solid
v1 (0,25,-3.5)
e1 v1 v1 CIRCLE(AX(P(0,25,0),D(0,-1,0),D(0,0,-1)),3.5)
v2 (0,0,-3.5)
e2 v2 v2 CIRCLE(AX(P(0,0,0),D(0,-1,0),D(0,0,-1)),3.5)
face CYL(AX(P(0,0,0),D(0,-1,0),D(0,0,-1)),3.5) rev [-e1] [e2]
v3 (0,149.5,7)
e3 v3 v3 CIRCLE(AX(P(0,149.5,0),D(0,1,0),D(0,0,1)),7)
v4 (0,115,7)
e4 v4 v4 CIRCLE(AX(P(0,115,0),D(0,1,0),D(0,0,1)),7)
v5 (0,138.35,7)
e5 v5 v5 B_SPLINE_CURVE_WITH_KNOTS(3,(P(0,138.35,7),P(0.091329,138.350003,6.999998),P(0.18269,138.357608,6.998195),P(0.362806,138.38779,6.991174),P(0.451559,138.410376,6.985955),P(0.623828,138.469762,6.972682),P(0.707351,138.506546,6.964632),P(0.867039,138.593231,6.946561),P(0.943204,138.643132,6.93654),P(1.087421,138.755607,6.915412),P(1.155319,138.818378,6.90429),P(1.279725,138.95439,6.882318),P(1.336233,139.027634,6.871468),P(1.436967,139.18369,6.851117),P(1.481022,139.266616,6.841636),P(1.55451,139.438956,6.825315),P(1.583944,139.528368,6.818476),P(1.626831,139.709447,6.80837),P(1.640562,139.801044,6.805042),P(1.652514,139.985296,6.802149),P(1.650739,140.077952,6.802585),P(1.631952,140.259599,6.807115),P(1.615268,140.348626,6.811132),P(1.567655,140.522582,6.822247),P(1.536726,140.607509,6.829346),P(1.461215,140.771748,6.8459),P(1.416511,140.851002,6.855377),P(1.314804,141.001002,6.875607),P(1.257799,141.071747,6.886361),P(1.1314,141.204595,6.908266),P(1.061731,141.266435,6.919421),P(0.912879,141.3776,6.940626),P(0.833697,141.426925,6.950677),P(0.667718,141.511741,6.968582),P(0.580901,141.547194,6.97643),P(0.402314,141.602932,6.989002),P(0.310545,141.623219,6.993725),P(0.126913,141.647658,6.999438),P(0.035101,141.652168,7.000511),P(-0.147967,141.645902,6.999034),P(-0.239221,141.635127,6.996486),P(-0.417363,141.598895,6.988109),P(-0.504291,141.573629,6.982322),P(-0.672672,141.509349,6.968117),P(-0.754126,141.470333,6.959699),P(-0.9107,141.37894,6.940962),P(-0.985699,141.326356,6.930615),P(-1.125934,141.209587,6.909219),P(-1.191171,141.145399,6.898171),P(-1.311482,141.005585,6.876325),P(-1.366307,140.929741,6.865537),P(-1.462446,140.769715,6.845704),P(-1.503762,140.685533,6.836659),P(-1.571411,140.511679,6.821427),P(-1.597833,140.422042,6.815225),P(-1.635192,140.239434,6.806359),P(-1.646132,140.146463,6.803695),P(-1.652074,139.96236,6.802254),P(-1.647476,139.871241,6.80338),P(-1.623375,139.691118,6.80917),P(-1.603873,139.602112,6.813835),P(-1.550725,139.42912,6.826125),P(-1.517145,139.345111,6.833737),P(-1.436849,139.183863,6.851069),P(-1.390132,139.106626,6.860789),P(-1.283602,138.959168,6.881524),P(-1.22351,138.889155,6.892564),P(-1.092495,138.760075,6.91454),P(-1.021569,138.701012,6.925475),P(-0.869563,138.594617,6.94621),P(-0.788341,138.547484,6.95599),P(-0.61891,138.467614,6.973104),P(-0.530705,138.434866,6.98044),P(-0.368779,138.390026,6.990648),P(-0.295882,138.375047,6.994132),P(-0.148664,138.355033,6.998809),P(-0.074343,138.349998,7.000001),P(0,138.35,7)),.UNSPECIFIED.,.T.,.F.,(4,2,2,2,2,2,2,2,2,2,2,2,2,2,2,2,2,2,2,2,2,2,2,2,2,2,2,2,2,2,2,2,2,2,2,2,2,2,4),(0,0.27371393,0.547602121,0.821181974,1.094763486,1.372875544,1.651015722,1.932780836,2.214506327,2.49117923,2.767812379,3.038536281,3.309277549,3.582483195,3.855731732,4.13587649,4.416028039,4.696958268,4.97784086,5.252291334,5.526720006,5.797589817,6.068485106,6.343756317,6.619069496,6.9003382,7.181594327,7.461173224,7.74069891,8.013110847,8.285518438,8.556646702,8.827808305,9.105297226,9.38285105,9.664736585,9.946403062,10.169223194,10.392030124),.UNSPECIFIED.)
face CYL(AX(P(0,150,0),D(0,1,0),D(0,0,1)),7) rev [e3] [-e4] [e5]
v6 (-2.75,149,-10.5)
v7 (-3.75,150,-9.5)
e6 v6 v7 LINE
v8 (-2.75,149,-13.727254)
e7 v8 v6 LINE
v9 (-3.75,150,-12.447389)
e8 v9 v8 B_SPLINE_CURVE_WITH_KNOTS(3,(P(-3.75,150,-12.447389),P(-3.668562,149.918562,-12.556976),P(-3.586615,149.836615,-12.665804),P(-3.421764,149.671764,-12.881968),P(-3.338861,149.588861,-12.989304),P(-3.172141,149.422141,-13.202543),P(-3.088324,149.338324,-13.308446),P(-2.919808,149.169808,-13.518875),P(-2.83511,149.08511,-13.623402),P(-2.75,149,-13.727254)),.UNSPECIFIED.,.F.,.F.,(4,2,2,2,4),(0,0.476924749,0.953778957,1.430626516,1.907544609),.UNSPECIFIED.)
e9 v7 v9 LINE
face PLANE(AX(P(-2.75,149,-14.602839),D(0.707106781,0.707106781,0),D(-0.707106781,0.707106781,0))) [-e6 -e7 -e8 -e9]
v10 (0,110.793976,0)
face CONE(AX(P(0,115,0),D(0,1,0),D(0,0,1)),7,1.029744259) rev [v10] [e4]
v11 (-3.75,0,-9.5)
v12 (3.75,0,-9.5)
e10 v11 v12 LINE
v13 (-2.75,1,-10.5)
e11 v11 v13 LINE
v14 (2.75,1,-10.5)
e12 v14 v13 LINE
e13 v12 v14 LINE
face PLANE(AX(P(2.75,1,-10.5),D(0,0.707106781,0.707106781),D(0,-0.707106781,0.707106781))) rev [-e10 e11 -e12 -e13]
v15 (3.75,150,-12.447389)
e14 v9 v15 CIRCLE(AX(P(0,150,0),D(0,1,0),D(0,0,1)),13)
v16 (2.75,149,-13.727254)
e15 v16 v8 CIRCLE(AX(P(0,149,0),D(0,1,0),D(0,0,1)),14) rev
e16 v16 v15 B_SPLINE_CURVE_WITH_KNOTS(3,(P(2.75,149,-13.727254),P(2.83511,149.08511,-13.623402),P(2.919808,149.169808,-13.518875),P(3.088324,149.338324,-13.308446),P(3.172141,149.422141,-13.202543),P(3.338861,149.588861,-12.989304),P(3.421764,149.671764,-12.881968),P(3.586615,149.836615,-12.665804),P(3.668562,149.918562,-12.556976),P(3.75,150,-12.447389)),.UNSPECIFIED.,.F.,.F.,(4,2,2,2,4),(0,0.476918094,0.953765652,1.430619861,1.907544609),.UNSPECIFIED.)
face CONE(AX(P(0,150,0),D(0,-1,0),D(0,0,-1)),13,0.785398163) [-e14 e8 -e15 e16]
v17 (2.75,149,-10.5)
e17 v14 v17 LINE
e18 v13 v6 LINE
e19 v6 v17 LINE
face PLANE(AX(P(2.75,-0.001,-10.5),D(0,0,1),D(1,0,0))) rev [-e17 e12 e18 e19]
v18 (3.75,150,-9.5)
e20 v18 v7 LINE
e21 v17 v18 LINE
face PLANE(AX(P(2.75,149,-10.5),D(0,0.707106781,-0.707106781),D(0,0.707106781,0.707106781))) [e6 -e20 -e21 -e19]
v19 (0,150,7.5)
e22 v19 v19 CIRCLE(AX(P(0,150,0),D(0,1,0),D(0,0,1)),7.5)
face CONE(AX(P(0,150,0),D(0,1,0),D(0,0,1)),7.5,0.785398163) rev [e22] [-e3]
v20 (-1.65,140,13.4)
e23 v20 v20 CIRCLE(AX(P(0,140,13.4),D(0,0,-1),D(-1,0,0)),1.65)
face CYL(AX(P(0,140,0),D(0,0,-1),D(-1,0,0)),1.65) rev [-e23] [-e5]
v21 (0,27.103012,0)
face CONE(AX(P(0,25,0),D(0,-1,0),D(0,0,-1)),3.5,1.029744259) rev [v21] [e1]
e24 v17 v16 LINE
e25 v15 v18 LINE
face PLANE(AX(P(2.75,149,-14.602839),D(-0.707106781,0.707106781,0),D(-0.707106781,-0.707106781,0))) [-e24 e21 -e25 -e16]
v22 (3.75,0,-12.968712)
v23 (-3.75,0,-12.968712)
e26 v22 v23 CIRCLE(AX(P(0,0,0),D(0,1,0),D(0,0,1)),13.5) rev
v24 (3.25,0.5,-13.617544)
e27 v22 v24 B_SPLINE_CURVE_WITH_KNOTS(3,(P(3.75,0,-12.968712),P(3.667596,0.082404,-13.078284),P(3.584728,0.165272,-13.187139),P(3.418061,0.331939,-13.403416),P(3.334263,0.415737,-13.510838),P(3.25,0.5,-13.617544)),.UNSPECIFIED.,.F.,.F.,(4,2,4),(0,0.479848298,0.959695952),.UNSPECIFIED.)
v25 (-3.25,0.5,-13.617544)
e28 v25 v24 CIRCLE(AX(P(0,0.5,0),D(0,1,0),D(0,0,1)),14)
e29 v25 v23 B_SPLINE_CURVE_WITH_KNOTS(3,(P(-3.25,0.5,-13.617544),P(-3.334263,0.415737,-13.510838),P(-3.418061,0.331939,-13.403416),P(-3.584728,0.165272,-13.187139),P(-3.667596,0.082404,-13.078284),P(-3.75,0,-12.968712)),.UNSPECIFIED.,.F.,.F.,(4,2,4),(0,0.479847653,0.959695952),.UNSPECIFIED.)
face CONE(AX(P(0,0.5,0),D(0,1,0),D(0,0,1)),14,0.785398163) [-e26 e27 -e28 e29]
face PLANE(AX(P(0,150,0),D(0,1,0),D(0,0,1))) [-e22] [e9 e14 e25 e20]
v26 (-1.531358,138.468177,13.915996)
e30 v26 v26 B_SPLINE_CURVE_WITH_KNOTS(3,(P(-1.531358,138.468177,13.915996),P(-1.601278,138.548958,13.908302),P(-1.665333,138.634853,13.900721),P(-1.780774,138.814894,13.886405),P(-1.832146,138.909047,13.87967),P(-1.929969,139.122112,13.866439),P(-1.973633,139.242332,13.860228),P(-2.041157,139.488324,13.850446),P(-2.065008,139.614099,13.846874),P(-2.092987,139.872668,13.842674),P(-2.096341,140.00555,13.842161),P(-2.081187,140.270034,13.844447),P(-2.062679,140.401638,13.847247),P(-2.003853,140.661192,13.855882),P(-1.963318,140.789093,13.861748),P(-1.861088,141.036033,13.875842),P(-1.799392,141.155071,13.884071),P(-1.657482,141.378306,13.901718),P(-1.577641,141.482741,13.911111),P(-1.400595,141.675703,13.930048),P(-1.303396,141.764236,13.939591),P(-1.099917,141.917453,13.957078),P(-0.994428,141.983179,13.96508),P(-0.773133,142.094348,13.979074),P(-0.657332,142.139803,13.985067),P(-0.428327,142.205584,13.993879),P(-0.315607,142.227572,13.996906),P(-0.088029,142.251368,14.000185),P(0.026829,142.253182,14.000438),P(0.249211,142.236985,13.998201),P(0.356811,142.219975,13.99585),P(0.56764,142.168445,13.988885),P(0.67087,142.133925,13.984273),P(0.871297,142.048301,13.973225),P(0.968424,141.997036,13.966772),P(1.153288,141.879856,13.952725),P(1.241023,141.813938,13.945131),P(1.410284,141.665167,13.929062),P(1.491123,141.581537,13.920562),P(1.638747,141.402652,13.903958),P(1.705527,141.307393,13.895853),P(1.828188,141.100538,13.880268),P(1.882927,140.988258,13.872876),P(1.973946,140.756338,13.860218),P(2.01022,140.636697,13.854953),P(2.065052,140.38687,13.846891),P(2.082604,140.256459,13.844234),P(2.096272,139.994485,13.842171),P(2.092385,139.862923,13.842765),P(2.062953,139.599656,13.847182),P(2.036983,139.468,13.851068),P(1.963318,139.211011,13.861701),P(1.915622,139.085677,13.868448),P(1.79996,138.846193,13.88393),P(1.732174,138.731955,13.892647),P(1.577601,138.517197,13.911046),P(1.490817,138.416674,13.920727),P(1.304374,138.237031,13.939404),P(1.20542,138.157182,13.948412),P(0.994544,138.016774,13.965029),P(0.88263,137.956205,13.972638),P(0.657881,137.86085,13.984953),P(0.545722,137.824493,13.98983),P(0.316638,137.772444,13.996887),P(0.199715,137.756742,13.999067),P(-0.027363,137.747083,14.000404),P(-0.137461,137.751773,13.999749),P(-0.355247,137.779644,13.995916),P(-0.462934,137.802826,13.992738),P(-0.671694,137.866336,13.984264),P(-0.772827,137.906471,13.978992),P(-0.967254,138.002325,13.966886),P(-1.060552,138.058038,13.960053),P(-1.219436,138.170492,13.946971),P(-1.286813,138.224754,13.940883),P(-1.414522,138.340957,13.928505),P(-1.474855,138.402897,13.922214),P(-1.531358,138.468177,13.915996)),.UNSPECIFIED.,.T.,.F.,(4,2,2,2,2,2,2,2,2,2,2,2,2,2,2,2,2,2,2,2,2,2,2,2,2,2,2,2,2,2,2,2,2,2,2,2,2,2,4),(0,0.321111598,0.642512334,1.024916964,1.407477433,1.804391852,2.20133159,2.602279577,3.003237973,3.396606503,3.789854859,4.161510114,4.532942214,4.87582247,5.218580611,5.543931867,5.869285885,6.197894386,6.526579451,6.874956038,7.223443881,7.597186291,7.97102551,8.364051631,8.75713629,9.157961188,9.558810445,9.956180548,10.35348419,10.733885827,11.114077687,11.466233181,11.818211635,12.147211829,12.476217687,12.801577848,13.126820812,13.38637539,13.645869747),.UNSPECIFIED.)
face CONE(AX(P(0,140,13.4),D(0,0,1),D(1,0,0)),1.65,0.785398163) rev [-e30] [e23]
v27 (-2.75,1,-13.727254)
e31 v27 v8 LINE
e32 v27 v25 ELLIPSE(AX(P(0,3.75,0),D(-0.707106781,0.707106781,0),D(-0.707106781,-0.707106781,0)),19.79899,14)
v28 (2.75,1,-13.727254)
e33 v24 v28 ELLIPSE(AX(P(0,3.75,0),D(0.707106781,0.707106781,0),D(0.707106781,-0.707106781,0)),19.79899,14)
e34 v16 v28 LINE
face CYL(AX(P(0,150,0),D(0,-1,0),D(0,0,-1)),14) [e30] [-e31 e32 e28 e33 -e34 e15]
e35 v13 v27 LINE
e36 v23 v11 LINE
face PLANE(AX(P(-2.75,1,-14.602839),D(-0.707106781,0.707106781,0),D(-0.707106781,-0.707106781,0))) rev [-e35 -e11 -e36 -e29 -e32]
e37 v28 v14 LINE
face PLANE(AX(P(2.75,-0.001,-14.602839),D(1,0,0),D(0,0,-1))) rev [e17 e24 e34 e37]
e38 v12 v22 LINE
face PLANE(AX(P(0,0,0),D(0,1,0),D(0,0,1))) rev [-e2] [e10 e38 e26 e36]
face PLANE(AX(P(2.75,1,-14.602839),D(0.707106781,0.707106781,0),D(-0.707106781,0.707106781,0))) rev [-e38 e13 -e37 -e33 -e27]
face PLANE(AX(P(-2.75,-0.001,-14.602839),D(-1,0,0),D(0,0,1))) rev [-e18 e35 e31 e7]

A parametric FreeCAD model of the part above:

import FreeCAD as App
import Part
import Sketcher
Q = App.Units.Quantity


def edges_at(feature, points):
    """Names of the edges that pass closest to the given points."""
    edges = feature.Shape.Edges
    near = lambda p: min(range(len(edges)), key=lambda i: edges[i].distToShape(Part.Vertex(*p))[0])
    return sorted({f"Edge{near(p) + 1}" for p in points})

doc = App.newDocument("Part")
body = doc.addObject("PartDesign::Body", "Body")

# Sketch on XZ plane
sketch1 = body.newObject("Sketcher::SketchObject", "Sketch")
sketch1.AttachmentSupport = (doc.getObject("XZ_Plane"), [""])
sketch1.MapMode = "FlatFace"
sketch1.addGeometry(Part.Circle(App.Vector(0, 0, 0), App.Vector(0, 0, 1), 14), False)
sketch1.addConstraint(Sketcher.Constraint("Coincident", 0, 3, -1, 1))
sketch1.addConstraint(Sketcher.Constraint("Diameter", 0, 28.0))
pad1 = body.newObject("PartDesign::Pad", "Pad")
pad1.Profile = sketch1
pad1.Length = 150
pad1.Reversed = True
doc.recompute()

chamfer = body.newObject("PartDesign::Chamfer", "Chamfer")
chamfer.Base = (pad1, edges_at(pad1, [(0, 150, -14)]))
chamfer.Size = 1

# Sketch on XZ plane
sketch2 = body.newObject("Sketcher::SketchObject", "Sketch001")
sketch2.AttachmentSupport = (doc.getObject("XZ_Plane"), [""])
sketch2.MapMode = "FlatFace"
sketch2.AttachmentOffset = App.Placement(App.Vector(0, 0, -150), App.Rotation())
sketch2.addGeometry(Part.Circle(App.Vector(0, 0, 0), App.Vector(0, 0, 1), 7), False)
sketch2.addConstraint(Sketcher.Constraint("Coincident", 0, 3, -1, 1))
sketch2.addConstraint(Sketcher.Constraint("Diameter", 0, 14.0))
doc.recompute()
hole = body.newObject("PartDesign::Hole", "Hole")
hole.Profile = sketch2
hole.ThreadType = "None"
hole.Diameter = 14
hole.DepthType = "Dimension"
hole.Depth = 35
hole.DrillPoint = "Angled"
hole.DrillPointAngle = 118
hole.HoleCutType = "Countersink"
hole.HoleCutDiameter = 15
hole.HoleCutCountersinkAngle = 90
hole.Reversed = True
doc.recompute()

chamfer2 = body.newObject("PartDesign::Chamfer", "Chamfer001")
chamfer2.Base = (hole, edges_at(hole, [(0, 0, -14)]))
chamfer2.Size = 0.5

# Sketch on XZ plane
sketch3 = body.newObject("Sketcher::SketchObject", "Sketch002")
sketch3.AttachmentSupport = (doc.getObject("XZ_Plane"), [""])
sketch3.MapMode = "FlatFace"
sketch3.addGeometry(Part.Circle(App.Vector(0, 0, 0), App.Vector(0, 0, 1), 3.5), False)
sketch3.addConstraint(Sketcher.Constraint("Coincident", 0, 3, -1, 1))
sketch3.addConstraint(Sketcher.Constraint("Diameter", 0, 7.0))
doc.recompute()
hole2 = body.newObject("PartDesign::Hole", "Hole001")
hole2.Profile = sketch3
hole2.ThreadType = "None"
hole2.Diameter = 7
hole2.DepthType = "Dimension"
hole2.Depth = 25
hole2.DrillPoint = "Angled"
hole2.DrillPointAngle = 118

# Sketch on YZ plane
sketch4 = body.newObject("Sketcher::SketchObject", "Sketch003")
sketch4.AttachmentSupport = (doc.getObject("YZ_Plane"), [""])
sketch4.MapMode = "FlatFace"
sketch4.addGeometry(Part.LineSegment(App.Vector(140, 14, 0), App.Vector(140, 0, 0)), False)
sketch4.addGeometry(Part.LineSegment(App.Vector(140, 0, 0), App.Vector(141.7, 0, 0)), False)
sketch4.addGeometry(Part.LineSegment(App.Vector(141.7, 0, 0), App.Vector(141.7, 13.4, 0)), False)
sketch4.addGeometry(Part.LineSegment(App.Vector(141.7, 13.4, 0), App.Vector(142.2, 14, 0)), False)
sketch4.addGeometry(Part.LineSegment(App.Vector(142.2, 14, 0), App.Vector(140, 14, 0)), False)
sketch4.addGeometry(Part.LineSegment(App.Vector(140, 0, 0), App.Vector(140, 14, 0)), True)  # axis
sketch4.addConstraint(Sketcher.Constraint("Coincident", 0, 2, 1, 1))
sketch4.addConstraint(Sketcher.Constraint("Coincident", 1, 2, 2, 1))
sketch4.addConstraint(Sketcher.Constraint("Coincident", 2, 2, 3, 1))
sketch4.addConstraint(Sketcher.Constraint("Coincident", 3, 2, 4, 1))
sketch4.addConstraint(Sketcher.Constraint("Coincident", 4, 2, 0, 1))
sketch4.addConstraint(Sketcher.Constraint("Vertical", 0))
sketch4.addConstraint(Sketcher.Constraint("Horizontal", 1))
sketch4.addConstraint(Sketcher.Constraint("Vertical", 2))
sketch4.addConstraint(Sketcher.Constraint("Horizontal", 4))
sketch4.addConstraint(Sketcher.Constraint("Vertical", 5))
sketch4.addConstraint(Sketcher.Constraint("Coincident", 5, 1, 0, 2))
sketch4.addConstraint(Sketcher.Constraint("PointOnObject", 0, 2, -1))
sketch4.addConstraint(Sketcher.Constraint("Horizontal", 3, 2, 5, 2))
sketch4.addConstraint(Sketcher.Constraint("DistanceY", 0, 2, 0, 1, 14.0))
sketch4.addConstraint(Sketcher.Constraint("Angle", 3, Q("45 deg")))
sketch4.addConstraint(Sketcher.Constraint("DistanceY", 2, 1, 2, 2, 13.4))
sketch4.addConstraint(Sketcher.Constraint("DistanceX", -1, 1, 0, 2, 140.0))
sketch4.addConstraint(Sketcher.Constraint("DistanceX", 1, 1, 1, 2, 1.65))
groove = body.newObject("PartDesign::Groove", "Groove")
groove.Profile = sketch4
groove.ReferenceAxis = (sketch4, ["Axis0"])
groove.Angle = 360

# Sketch on XZ plane
sketch5 = body.newObject("Sketcher::SketchObject", "Sketch004")
sketch5.AttachmentSupport = (doc.getObject("XZ_Plane"), [""])
sketch5.MapMode = "FlatFace"
sketch5.AttachmentOffset = App.Placement(App.Vector(0, 0, -150), App.Rotation())
sketch5.addGeometry(Part.LineSegment(App.Vector(2.8, -10.5, 0), App.Vector(2.8, -14.6, 0)), False)
sketch5.addGeometry(Part.LineSegment(App.Vector(2.8, -14.6, 0), App.Vector(-2.8, -14.6, 0)), False)
sketch5.addGeometry(Part.LineSegment(App.Vector(-2.8, -14.6, 0), App.Vector(-2.8, -10.5, 0)), False)
sketch5.addGeometry(Part.LineSegment(App.Vector(-2.8, -10.5, 0), App.Vector(2.8, -10.5, 0)), False)
sketch5.addConstraint(Sketcher.Constraint("Coincident", 0, 2, 1, 1))
sketch5.addConstraint(Sketcher.Constraint("Coincident", 1, 2, 2, 1))
sketch5.addConstraint(Sketcher.Constraint("Coincident", 2, 2, 3, 1))
sketch5.addConstraint(Sketcher.Constraint("Coincident", 3, 2, 0, 1))
sketch5.addConstraint(Sketcher.Constraint("Vertical", 0))
sketch5.addConstraint(Sketcher.Constraint("Horizontal", 1))
sketch5.addConstraint(Sketcher.Constraint("Vertical", 2))
sketch5.addConstraint(Sketcher.Constraint("Horizontal", 3))
sketch5.addConstraint(Sketcher.Constraint("DistanceX", 1, 2, 1, 1, 5.5))
sketch5.addConstraint(Sketcher.Constraint("DistanceY", 2, 2, -1, 1, 10.5))
sketch5.addConstraint(Sketcher.Constraint("DistanceX", -1, 1, 0, 2, 2.75))
sketch5.addConstraint(Sketcher.Constraint("DistanceY", 0, 2, 0, 1, 4.102839))
pocket1 = body.newObject("PartDesign::Pocket", "Pocket")
pocket1.Profile = sketch5
pocket1.Type = "UpToFirst"
pocket1.Reversed = True
doc.recompute()

chamfer3 = body.newObject("PartDesign::Chamfer", "Chamfer002")
chamfer3.Base = (pocket1, edges_at(pocket1, [(2.75, 0, -11.858), (-2.75, 0, -11.858), (0, 0, -10.5)]))
chamfer3.Size = 1
doc.recompute()

chamfer4 = body.newObject("PartDesign::Chamfer", "Chamfer003")
chamfer4.Base = (chamfer3, edges_at(chamfer3, [(2.75, 150, -11.603), (-2.75, 150, -11.603), (0, 150, -10.5)]))
chamfer4.Size = 1

doc.recompute()
